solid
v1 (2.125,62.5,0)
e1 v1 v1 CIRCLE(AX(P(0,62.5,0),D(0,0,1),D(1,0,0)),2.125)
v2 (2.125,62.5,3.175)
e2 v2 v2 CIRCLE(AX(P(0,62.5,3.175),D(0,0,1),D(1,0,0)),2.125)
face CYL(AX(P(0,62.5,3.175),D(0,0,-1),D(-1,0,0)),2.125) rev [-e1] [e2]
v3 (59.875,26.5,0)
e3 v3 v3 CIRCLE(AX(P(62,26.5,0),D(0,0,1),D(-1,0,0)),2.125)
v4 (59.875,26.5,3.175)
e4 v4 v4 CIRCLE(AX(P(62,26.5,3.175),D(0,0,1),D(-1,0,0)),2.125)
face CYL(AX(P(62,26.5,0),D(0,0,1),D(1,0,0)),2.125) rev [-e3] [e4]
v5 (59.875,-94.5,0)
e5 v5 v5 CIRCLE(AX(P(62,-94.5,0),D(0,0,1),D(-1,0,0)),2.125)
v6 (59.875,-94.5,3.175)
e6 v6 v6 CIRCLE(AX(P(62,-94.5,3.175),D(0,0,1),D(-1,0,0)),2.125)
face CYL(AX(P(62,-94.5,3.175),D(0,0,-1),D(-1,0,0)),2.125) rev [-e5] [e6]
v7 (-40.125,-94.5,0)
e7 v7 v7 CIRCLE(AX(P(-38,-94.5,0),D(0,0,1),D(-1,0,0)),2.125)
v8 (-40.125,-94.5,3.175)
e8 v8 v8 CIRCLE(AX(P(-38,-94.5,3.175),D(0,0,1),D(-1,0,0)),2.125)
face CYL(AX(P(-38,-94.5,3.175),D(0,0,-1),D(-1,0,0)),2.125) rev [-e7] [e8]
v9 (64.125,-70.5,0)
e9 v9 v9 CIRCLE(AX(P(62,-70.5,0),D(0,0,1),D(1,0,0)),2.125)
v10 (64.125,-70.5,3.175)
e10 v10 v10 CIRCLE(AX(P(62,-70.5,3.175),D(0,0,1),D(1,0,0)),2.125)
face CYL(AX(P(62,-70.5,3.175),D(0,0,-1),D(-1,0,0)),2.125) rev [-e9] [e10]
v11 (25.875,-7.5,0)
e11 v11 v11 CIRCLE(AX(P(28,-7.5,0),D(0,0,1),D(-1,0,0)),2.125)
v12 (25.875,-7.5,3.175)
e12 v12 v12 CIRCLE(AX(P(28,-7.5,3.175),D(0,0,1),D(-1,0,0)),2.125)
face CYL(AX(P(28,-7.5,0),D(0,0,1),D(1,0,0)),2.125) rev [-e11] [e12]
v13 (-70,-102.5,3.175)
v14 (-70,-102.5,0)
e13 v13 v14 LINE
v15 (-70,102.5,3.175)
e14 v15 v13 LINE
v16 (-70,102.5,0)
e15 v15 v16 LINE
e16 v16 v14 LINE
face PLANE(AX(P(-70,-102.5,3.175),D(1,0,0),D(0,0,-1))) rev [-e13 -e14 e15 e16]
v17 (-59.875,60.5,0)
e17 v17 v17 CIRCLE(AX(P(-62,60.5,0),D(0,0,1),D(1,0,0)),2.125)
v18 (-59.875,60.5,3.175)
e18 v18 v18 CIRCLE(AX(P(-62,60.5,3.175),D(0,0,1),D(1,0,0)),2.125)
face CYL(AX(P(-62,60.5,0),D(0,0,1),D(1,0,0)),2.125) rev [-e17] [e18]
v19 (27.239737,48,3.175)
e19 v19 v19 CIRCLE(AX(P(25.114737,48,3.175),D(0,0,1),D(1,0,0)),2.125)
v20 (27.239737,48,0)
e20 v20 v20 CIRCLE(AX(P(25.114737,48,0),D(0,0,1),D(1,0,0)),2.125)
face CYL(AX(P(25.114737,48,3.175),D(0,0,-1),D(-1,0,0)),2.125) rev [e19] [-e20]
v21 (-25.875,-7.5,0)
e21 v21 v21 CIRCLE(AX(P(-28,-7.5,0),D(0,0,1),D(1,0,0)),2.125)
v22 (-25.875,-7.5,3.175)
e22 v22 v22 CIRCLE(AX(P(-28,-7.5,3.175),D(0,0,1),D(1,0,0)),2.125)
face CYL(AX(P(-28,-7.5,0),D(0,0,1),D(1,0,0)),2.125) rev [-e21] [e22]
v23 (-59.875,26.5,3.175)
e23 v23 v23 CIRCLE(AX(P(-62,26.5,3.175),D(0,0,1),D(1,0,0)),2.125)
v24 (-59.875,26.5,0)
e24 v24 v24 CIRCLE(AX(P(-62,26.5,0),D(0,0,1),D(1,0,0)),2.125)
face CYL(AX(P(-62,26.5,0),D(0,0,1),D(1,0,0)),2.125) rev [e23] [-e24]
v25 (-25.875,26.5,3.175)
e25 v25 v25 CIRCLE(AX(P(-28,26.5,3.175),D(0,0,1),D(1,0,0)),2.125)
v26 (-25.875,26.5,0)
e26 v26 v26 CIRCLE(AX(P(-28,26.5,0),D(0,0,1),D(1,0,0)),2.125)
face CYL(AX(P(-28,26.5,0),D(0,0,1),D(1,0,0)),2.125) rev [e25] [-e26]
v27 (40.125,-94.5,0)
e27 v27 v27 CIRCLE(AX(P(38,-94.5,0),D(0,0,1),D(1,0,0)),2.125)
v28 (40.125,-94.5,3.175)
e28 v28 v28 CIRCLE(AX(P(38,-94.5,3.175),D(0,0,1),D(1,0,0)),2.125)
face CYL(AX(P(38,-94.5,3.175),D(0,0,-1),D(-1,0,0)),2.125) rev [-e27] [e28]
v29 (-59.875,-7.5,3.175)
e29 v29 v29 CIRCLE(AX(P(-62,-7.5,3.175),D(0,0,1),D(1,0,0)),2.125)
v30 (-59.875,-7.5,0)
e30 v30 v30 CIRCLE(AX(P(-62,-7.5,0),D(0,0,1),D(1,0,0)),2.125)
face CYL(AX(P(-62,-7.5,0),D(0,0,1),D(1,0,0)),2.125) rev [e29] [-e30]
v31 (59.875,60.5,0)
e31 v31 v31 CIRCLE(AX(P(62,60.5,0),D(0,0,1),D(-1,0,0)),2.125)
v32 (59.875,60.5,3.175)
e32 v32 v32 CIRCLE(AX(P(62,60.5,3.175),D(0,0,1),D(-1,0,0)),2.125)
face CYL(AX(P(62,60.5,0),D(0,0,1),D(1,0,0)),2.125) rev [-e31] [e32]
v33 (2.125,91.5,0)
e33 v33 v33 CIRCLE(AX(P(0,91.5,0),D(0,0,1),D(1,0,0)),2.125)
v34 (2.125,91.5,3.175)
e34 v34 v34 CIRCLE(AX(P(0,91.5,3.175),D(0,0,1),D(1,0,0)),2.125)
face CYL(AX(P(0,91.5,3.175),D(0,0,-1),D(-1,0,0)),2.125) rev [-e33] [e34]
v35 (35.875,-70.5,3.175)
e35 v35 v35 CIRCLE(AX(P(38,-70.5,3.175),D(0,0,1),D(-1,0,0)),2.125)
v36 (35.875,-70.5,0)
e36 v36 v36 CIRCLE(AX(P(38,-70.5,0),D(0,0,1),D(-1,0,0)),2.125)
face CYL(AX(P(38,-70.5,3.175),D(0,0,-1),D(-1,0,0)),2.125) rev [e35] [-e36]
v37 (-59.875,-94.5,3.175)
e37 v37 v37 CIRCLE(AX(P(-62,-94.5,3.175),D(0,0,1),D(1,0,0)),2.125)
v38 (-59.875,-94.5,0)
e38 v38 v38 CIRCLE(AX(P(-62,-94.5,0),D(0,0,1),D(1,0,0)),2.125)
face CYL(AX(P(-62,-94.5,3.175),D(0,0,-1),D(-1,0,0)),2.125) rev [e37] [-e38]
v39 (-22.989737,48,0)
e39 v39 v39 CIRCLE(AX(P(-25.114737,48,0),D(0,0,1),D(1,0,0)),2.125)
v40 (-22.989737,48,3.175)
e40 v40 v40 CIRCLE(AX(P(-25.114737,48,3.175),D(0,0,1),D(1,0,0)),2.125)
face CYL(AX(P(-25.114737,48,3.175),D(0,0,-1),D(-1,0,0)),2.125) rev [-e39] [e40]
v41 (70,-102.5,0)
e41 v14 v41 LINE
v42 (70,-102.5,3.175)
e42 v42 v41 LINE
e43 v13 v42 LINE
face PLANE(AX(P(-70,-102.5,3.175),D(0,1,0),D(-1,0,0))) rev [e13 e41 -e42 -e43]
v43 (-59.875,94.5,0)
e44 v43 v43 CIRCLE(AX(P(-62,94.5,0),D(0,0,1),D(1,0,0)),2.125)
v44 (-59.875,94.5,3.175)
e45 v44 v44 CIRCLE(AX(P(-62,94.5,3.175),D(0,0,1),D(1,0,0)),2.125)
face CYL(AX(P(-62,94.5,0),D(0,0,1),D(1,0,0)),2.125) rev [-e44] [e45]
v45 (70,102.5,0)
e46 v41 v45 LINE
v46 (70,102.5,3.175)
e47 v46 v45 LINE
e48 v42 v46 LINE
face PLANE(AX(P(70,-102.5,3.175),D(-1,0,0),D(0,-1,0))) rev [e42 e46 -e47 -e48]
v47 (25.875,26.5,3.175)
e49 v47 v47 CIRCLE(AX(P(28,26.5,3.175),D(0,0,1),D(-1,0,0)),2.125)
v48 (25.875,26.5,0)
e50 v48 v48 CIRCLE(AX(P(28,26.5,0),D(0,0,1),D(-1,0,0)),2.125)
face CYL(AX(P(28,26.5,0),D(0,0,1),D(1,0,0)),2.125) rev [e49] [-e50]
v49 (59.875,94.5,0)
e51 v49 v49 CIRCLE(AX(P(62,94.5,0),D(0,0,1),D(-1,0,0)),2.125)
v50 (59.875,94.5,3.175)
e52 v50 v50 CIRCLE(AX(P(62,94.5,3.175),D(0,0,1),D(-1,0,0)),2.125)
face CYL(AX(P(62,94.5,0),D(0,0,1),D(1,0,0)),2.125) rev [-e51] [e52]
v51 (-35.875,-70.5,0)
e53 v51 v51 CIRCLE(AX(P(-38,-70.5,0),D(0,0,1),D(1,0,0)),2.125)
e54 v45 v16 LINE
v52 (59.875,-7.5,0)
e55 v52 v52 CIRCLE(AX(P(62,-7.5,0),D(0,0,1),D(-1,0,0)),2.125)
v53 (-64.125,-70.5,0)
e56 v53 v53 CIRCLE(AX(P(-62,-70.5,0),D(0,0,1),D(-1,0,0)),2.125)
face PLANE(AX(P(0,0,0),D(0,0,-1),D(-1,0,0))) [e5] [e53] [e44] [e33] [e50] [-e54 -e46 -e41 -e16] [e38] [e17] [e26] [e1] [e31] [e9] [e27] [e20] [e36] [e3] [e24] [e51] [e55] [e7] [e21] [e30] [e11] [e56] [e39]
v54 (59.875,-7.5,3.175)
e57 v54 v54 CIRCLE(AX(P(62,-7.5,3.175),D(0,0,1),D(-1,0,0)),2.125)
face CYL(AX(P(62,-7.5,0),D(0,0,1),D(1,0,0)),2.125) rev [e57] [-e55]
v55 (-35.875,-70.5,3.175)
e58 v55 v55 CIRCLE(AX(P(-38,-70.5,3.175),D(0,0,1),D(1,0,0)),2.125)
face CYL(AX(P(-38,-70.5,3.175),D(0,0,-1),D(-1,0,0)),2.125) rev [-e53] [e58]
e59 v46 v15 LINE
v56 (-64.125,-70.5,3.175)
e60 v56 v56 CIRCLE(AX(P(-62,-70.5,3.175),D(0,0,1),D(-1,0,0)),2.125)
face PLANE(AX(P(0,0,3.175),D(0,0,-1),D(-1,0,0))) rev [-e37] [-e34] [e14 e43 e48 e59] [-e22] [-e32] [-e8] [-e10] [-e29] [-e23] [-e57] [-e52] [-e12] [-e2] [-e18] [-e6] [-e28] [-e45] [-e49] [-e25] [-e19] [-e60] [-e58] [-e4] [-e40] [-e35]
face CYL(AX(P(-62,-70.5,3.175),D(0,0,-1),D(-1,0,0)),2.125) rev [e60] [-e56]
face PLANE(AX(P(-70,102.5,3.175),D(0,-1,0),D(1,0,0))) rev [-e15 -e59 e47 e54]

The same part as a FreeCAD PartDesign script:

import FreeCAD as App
import Part
import Sketcher
from FreeCAD import Vector
Q = App.Units.Quantity

doc = App.newDocument("Part")
body = doc.addObject("PartDesign::Body", "Body")

# Sketch on XY plane
sketch1 = doc.addObject("Sketcher::SketchObject", "Sketch")
body.addObject(sketch1)
sketch1.AttachmentSupport = (doc.XY_Plane, [""])
sketch1.MapMode = "FlatFace"
sketch1.addGeometry([
    Part.LineSegment(Vector(-70, 102.5, 0), Vector(-70, -102.5, 0)),  # 0
    Part.LineSegment(Vector(-70, -102.5, 0), Vector(70, -102.5, 0)),  # 1
    Part.LineSegment(Vector(70, -102.5, 0), Vector(70, 102.5, 0)),  # 2
    Part.LineSegment(Vector(70, 102.5, 0), Vector(-70, 102.5, 0)),  # 3
    Part.Circle(Vector(-62, -94.5, 0), Vector(0, 0, 1), 2.125),  # 4
    Part.Circle(Vector(-38, -94.5, 0), Vector(0, 0, 1), 2.125),  # 5
    Part.Circle(Vector(-62, -70.5, 0), Vector(0, 0, 1), 2.125),  # 6
    Part.Circle(Vector(-38, -70.5, 0), Vector(0, 0, 1), 2.125),  # 7
    Part.Circle(Vector(38, -94.5, 0), Vector(0, 0, 1), 2.125),  # 8
    Part.Circle(Vector(62, -94.5, 0), Vector(0, 0, 1), 2.125),  # 9
    Part.Circle(Vector(38, -70.5, 0), Vector(0, 0, 1), 2.125),  # 10
    Part.Circle(Vector(62, -70.5, 0), Vector(0, 0, 1), 2.125),  # 11
    Part.Circle(Vector(-25.114737, 48, 0), Vector(0, 0, 1), 2.125),  # 12
    Part.Circle(Vector(0, 62.5, 0), Vector(0, 0, 1), 2.125),  # 13
    Part.Circle(Vector(25.114737, 48, 0), Vector(0, 0, 1), 2.125),  # 14
    Part.Circle(Vector(0, 91.5, 0), Vector(0, 0, 1), 2.125),  # 15
], False)
sketch1.addConstraint([
    Sketcher.Constraint("Coincident", 0, 2, 1, 1),
    Sketcher.Constraint("Coincident", 1, 2, 2, 1),
    Sketcher.Constraint("Coincident", 2, 2, 3, 1),
    Sketcher.Constraint("Coincident", 3, 2, 0, 1),
    Sketcher.Constraint("Vertical", 0),
    Sketcher.Constraint("Horizontal", 1),
    Sketcher.Constraint("Vertical", 2),
    Sketcher.Constraint("Horizontal", 3),
    Sketcher.Constraint("Equal", 4, 5),
    Sketcher.Constraint("Equal", 5, 6),
    Sketcher.Constraint("Equal", 6, 7),
    Sketcher.Constraint("Equal", 7, 8),
    Sketcher.Constraint("Equal", 8, 9),
    Sketcher.Constraint("Equal", 9, 10),
    Sketcher.Constraint("Equal", 10, 11),
    Sketcher.Constraint("Equal", 11, 12),
    Sketcher.Constraint("Equal", 12, 13),
    Sketcher.Constraint("Equal", 13, 14),
    Sketcher.Constraint("Equal", 14, 15),
    Sketcher.Constraint("Symmetric", 0, 2, 2, 2, -1, 1),
    Sketcher.Constraint("Symmetric", 5, 3, 8, 3, -2),
    Sketcher.Constraint("Symmetric", 4, 3, 9, 3, -2),
    Sketcher.Constraint("Symmetric", 7, 3, 10, 3, -2),
    Sketcher.Constraint("Symmetric", 6, 3, 11, 3, -2),
    Sketcher.Constraint("Symmetric", 12, 3, 14, 3, -2),
    Sketcher.Constraint("PointOnObject", 13, 3, -2),
    Sketcher.Constraint("PointOnObject", 15, 3, -2),
    Sketcher.Constraint("Horizontal", 4, 3, 5, 3),
    Sketcher.Constraint("Horizontal", 6, 3, 7, 3),
    Sketcher.Constraint("Vertical", 4, 3, 6, 3),
    Sketcher.Constraint("Vertical", 5, 3, 7, 3),
    Sketcher.Constraint("Diameter", 4, Q("4.25 mm")),
    Sketcher.Constraint("DistanceX", 1, 1, 1, 2, Q("140 mm")),
    Sketcher.Constraint("DistanceY", 0, 2, 0, 1, Q("205 mm")),
    Sketcher.Constraint("DistanceX", 4, 3, -1, 1, Q("62 mm")),
    Sketcher.Constraint("DistanceX", 5, 3, -1, 1, Q("38 mm")),
    Sketcher.Constraint("DistanceY", -1, 1, 12, 3, Q("48 mm")),
    Sketcher.Constraint("DistanceY", 4, 3, 6, 3, Q("24 mm")),
    Sketcher.Constraint("DistanceY", 7, 3, 13, 3, Q("133 mm")),
    Sketcher.Constraint("DistanceY", 13, 3, 15, 3, Q("29 mm")),
    Sketcher.Constraint("DistanceY", 0, 2, 4, 3, Q("8 mm")),
    Sketcher.Constraint("DistanceX", 12, 3, -1, 1, Q("25.114737 mm")),
])
pad1 = doc.addObject("PartDesign::Pad", "Pad")
body.addObject(pad1)
pad1.Profile = sketch1
pad1.Length = 3.175

# Sketch on XY plane
sketch2 = doc.addObject("Sketcher::SketchObject", "Sketch001")
body.addObject(sketch2)
sketch2.AttachmentSupport = (doc.XY_Plane, [""])
sketch2.MapMode = "FlatFace"
sketch2.AttachmentOffset = App.Placement(Vector(0, 0, 3.175), App.Rotation())
sketch2.addGeometry([
    Part.Circle(Vector(-62, 94.5, 0), Vector(0, 0, 1), 2.125),  # 0
    Part.Circle(Vector(-62, 60.5, 0), Vector(0, 0, 1), 2.125),  # 1
    Part.Circle(Vector(-62, 26.5, 0), Vector(0, 0, 1), 2.125),  # 2
    Part.Circle(Vector(-62, -7.5, 0), Vector(0, 0, 1), 2.125),  # 3
    Part.Circle(Vector(-28, 26.5, 0), Vector(0, 0, 1), 2.125),  # 4
    Part.Circle(Vector(-28, -7.5, 0), Vector(0, 0, 1), 2.125),  # 5
    Part.Circle(Vector(28, -7.5, 0), Vector(0, 0, 1), 2.125),  # 6
    Part.Circle(Vector(28, 26.5, 0), Vector(0, 0, 1), 2.125),  # 7
    Part.Circle(Vector(62, -7.5, 0), Vector(0, 0, 1), 2.125),  # 8
    Part.Circle(Vector(62, 26.5, 0), Vector(0, 0, 1), 2.125),  # 9
    Part.Circle(Vector(62, 60.5, 0), Vector(0, 0, 1), 2.125),  # 10
    Part.Circle(Vector(62, 94.5, 0), Vector(0, 0, 1), 2.125),  # 11
], False)
sketch2.addConstraint([
    Sketcher.Constraint("Equal", 0, 1),
    Sketcher.Constraint("Equal", 1, 2),
    Sketcher.Constraint("Equal", 2, 3),
    Sketcher.Constraint("Equal", 3, 4),
    Sketcher.Constraint("Equal", 4, 5),
    Sketcher.Constraint("Equal", 5, 6),
    Sketcher.Constraint("Equal", 6, 7),
    Sketcher.Constraint("Equal", 7, 8),
    Sketcher.Constraint("Equal", 8, 9),
    Sketcher.Constraint("Equal", 9, 10),
    Sketcher.Constraint("Equal", 10, 11),
    Sketcher.Constraint("Symmetric", 5, 3, 6, 3, -2),
    Sketcher.Constraint("Symmetric", 4, 3, 7, 3, -2),
    Sketcher.Constraint("Symmetric", 3, 3, 8, 3, -2),
    Sketcher.Constraint("Symmetric", 2, 3, 9, 3, -2),
    Sketcher.Constraint("Symmetric", 1, 3, 10, 3, -2),
    Sketcher.Constraint("Symmetric", 0, 3, 11, 3, -2),
    Sketcher.Constraint("Horizontal", 2, 3, 4, 3),
    Sketcher.Constraint("Horizontal", 3, 3, 5, 3),
    Sketcher.Constraint("Vertical", 0, 3, 1, 3),
    Sketcher.Constraint("Vertical", 1, 3, 2, 3),
    Sketcher.Constraint("Vertical", 2, 3, 3, 3),
    Sketcher.Constraint("Vertical", 4, 3, 5, 3),
    Sketcher.Constraint("Diameter", 0, Q("4.25 mm")),
    Sketcher.Constraint("DistanceX", 0, 3, -1, 1, Q("62 mm")),
    Sketcher.Constraint("DistanceX", 4, 3, -1, 1, Q("28 mm")),
    Sketcher.Constraint("DistanceY", 1, 3, 0, 3, Q("34 mm")),
    Sketcher.Constraint("DistanceY", 2, 3, 1, 3, Q("34 mm")),
    Sketcher.Constraint("DistanceY", 3, 3, 2, 3, Q("34 mm")),
    Sketcher.Constraint("DistanceY", -1, 1, 0, 3, Q("94.5 mm")),
])
pocket1 = doc.addObject("PartDesign::Pocket", "Pocket")
body.addObject(pocket1)
pocket1.Profile = sketch2
pocket1.Type = "ThroughAll"

doc.recompute()
